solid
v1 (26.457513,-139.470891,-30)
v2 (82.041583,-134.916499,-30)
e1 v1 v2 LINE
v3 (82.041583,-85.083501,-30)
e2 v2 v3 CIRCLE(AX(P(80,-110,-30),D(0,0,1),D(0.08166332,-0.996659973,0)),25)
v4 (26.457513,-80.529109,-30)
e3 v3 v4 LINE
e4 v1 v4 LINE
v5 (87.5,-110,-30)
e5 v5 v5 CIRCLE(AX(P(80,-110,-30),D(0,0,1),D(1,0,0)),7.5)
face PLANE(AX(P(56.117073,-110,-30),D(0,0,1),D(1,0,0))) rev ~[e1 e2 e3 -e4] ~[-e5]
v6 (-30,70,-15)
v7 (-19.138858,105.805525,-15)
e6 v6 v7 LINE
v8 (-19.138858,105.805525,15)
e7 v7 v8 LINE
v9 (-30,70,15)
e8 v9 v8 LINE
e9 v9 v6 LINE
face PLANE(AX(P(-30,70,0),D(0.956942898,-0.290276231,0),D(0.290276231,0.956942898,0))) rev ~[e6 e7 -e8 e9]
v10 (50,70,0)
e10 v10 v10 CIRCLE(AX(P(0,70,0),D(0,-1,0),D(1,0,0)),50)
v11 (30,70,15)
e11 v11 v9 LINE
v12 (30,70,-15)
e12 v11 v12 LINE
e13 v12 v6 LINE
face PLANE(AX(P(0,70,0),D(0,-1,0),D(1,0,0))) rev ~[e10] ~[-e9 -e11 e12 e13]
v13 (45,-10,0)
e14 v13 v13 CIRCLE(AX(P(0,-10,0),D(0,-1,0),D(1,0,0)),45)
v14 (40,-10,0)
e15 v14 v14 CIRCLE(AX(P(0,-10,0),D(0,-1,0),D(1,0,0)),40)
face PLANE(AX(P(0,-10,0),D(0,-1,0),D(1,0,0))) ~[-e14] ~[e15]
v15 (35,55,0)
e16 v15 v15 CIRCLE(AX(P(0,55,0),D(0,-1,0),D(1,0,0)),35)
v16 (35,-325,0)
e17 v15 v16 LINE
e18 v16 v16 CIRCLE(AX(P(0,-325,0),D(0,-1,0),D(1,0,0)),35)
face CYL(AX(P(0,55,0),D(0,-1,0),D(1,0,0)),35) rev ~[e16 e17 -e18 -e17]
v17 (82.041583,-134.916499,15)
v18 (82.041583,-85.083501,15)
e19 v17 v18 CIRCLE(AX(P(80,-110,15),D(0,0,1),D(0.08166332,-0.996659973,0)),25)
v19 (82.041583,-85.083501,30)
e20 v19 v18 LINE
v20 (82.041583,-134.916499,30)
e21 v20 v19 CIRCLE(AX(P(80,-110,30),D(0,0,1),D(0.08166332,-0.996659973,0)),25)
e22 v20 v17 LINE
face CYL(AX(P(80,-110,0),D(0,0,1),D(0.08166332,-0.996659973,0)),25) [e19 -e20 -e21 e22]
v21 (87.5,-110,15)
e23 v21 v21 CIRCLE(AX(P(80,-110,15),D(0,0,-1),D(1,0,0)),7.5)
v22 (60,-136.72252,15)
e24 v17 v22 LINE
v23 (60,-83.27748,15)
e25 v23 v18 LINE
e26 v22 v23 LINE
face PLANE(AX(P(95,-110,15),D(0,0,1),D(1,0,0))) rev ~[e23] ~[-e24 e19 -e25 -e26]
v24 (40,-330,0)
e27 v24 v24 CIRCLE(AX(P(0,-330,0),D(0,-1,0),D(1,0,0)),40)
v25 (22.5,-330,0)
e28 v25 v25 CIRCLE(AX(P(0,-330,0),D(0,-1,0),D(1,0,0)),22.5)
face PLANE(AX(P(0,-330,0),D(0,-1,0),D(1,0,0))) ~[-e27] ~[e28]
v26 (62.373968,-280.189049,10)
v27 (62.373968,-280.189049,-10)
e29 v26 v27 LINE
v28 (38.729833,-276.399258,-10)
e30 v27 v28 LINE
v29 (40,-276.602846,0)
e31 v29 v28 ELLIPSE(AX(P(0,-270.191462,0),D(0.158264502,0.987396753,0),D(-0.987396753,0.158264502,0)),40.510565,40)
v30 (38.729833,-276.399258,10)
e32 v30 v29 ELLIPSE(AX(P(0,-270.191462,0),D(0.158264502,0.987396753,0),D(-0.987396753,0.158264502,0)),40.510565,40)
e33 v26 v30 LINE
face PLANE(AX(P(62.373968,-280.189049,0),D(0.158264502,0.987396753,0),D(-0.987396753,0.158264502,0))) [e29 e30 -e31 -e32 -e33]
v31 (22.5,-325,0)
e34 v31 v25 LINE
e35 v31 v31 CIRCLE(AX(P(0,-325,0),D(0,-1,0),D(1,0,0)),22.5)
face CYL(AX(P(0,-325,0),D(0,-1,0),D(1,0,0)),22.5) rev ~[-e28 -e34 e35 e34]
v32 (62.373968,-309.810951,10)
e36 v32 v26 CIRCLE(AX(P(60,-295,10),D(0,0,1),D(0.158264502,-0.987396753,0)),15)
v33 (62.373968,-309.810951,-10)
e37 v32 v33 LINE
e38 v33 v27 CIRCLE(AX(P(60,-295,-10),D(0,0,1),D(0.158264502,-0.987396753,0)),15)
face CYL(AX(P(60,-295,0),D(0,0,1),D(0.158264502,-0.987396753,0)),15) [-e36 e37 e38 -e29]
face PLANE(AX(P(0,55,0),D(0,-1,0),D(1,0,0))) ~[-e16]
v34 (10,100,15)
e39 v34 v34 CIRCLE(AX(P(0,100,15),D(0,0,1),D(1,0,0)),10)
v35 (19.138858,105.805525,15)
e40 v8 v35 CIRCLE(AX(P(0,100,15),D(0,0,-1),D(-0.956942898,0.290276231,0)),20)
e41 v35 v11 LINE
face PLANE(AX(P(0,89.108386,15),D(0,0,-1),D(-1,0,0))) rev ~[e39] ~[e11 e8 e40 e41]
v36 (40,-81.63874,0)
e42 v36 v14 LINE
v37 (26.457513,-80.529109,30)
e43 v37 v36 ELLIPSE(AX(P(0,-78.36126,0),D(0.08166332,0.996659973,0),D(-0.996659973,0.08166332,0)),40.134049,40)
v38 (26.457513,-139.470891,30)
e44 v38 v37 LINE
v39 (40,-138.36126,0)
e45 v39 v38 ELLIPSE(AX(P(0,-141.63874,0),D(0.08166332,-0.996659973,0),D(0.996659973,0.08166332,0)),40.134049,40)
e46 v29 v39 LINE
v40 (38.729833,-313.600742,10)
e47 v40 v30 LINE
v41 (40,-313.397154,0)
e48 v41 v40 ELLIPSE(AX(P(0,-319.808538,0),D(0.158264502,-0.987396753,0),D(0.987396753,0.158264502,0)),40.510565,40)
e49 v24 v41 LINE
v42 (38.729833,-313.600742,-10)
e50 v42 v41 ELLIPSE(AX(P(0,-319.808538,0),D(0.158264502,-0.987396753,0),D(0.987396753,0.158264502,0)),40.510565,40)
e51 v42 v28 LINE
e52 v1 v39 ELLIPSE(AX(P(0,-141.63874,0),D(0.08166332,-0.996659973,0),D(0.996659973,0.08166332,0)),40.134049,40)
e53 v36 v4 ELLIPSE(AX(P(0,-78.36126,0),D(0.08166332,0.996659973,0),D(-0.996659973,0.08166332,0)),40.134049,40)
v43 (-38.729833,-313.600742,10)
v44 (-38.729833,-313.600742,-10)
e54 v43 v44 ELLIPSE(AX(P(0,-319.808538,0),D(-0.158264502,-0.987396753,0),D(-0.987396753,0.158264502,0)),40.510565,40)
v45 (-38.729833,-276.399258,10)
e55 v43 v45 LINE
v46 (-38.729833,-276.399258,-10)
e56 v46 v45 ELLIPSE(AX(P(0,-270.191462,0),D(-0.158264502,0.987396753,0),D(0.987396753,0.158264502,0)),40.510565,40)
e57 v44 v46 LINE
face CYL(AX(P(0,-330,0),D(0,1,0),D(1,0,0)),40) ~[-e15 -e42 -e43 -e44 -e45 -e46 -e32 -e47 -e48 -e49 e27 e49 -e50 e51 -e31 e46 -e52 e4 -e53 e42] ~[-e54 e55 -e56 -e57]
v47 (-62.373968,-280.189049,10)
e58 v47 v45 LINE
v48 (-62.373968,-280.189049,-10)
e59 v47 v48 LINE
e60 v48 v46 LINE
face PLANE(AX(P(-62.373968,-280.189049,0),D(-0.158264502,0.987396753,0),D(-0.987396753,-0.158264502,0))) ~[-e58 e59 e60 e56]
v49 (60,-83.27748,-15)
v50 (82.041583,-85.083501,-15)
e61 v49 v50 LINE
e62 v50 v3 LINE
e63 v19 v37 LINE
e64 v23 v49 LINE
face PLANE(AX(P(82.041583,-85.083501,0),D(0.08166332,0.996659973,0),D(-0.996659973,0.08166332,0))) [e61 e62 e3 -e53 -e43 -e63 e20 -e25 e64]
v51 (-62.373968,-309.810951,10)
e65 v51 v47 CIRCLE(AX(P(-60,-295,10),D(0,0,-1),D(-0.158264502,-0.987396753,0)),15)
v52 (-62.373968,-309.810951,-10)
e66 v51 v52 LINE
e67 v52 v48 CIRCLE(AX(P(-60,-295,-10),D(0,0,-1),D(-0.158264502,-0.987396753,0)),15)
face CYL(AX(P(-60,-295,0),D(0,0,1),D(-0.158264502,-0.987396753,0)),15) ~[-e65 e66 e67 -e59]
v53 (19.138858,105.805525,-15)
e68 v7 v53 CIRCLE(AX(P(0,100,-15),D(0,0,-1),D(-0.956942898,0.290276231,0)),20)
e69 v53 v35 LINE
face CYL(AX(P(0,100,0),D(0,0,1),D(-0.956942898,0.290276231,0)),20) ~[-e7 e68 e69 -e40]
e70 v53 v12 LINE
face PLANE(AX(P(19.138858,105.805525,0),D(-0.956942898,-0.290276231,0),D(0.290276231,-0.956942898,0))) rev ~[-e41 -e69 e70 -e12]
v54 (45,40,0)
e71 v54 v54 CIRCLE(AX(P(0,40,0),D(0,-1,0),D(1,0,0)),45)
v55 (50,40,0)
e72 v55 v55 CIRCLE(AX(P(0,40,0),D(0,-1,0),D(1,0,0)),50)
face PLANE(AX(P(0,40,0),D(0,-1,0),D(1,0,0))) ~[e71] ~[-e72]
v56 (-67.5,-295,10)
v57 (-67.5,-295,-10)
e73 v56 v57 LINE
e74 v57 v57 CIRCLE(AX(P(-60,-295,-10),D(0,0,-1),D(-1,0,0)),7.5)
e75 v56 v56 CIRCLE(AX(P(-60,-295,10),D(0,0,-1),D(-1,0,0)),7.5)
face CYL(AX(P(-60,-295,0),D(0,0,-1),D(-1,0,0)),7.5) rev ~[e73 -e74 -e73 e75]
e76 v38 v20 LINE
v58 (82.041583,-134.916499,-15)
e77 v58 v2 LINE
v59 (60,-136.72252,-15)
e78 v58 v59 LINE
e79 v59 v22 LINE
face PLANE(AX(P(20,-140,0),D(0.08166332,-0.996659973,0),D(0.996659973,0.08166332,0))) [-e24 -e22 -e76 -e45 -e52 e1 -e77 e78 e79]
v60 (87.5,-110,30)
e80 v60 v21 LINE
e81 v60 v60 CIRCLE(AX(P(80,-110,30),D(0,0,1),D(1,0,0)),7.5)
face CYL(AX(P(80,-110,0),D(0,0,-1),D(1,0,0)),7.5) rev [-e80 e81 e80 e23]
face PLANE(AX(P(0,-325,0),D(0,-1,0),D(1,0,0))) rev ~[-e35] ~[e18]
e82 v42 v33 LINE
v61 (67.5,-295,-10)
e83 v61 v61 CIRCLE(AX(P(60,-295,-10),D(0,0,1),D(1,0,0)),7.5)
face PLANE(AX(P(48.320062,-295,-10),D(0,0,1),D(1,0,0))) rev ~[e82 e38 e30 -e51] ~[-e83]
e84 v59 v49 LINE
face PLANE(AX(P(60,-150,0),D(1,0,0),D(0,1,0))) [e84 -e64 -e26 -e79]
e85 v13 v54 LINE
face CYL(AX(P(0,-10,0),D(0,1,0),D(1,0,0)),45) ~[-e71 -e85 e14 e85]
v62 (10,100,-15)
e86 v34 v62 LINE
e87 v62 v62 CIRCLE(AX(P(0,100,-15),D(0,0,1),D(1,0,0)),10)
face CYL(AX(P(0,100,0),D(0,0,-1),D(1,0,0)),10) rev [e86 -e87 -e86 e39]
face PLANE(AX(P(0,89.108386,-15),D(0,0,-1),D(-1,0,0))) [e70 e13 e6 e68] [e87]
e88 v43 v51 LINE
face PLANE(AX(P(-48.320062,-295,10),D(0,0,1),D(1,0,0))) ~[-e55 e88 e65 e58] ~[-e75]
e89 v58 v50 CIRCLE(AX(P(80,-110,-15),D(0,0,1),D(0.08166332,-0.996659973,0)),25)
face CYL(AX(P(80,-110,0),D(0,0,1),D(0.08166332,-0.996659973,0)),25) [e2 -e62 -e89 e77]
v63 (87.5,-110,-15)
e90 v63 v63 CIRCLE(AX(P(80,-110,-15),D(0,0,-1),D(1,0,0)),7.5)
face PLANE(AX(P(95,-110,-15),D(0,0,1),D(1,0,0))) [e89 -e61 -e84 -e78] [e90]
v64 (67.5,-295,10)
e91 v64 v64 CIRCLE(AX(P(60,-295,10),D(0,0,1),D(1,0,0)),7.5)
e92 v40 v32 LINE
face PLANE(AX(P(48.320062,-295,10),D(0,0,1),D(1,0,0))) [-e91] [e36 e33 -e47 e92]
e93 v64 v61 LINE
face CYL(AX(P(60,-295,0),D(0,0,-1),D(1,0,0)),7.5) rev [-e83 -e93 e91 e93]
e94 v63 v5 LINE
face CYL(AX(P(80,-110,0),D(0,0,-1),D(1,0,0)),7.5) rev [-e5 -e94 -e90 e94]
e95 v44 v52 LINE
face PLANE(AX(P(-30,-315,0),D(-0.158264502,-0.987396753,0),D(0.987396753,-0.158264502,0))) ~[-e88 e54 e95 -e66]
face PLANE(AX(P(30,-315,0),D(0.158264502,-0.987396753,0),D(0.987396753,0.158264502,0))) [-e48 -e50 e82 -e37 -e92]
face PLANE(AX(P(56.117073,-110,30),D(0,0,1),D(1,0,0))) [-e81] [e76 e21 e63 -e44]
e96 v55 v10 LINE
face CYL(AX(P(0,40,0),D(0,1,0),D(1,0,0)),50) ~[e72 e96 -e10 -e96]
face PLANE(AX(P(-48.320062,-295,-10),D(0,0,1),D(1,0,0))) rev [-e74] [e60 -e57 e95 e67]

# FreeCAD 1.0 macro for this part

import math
import FreeCAD as App
import Part
import Sketcher

doc = App.newDocument("Part")
params = doc.addObject("Spreadsheet::Sheet", "Params")
for row, (alias, value) in enumerate([
    ("sketch1_width", "5 mm"),
    ("sketch1_width2", "50 mm"),
    ("sketch1_width3", "35 mm"),
    ("sketch1_height", "320 mm"),
    ("sketch1_height2", "30 mm"),
    ("revolution_angle", "360 deg"),
    ("sketch2_diameter", "20 mm"),
    ("sketch2_radius", "20 mm"),
    ("sketch2_width", "60 mm"),
    ("pad1_length", "30 mm"),
    ("sketch3_diameter", "15 mm"),
    ("sketch3_radius", "15 mm"),
    ("sketch3_height", "40 mm"),
    ("pad2_length", "20 mm"),
    ("sketch4_diameter", "15 mm"),
    ("sketch4_radius", "25 mm"),
    ("sketch4_height", "60 mm"),
    ("pad3_length", "60 mm"),
    ("sketch5_width", "35 mm"),
    ("sketch5_height", "315 mm"),
    ("groove_angle", "360 deg"),
    ("sketch6_width", "70 mm"),
    ("sketch6_height", "80 mm"),
    ("pocket1_length", "30 mm"),
], start=1):
    params.set(f"A{row}", alias)
    params.set(f"B{row}", "=" + value)
    params.setAlias(f"B{row}", alias)

body = doc.addObject("PartDesign::Body", "Body")

sketch1 = doc.addObject("Sketcher::SketchObject", "Sketch")
body.addObject(sketch1)
sketch1.AttachmentSupport = (doc.XY_Plane, [""])
sketch1.MapMode = "FlatFace"
sketch1.addGeometry([
    Part.LineSegment(App.Vector(22, -330, 0), App.Vector(40, -330, 0)),
    Part.LineSegment(App.Vector(40, -330, 0), App.Vector(40, -10, 0)),
    Part.LineSegment(App.Vector(40, -10, 0), App.Vector(45, -10, 0)),
    Part.LineSegment(App.Vector(45, -10, 0), App.Vector(45, 40, 0)),
    Part.LineSegment(App.Vector(45, 40, 0), App.Vector(50, 40, 0)),
    Part.LineSegment(App.Vector(50, 40, 0), App.Vector(50, 70, 0)),
    Part.LineSegment(App.Vector(50, 70, 0), App.Vector(0, 70, 0)),
    Part.LineSegment(App.Vector(0, 70, 0), App.Vector(0, 55, 0)),
    Part.LineSegment(App.Vector(0, 55, 0), App.Vector(35, 55, 0)),
    Part.LineSegment(App.Vector(35, 55, 0), App.Vector(35, -325, 0)),
    Part.LineSegment(App.Vector(35, -325, 0), App.Vector(22, -325, 0)),
    Part.LineSegment(App.Vector(22, -325, 0), App.Vector(22, -330, 0)),
], False)
sketch1.addConstraint([
    Sketcher.Constraint("Coincident", 0, 2, 1, 1),
    Sketcher.Constraint("Coincident", 1, 2, 2, 1),
    Sketcher.Constraint("Coincident", 2, 2, 3, 1),
    Sketcher.Constraint("Coincident", 3, 2, 4, 1),
    Sketcher.Constraint("Coincident", 4, 2, 5, 1),
    Sketcher.Constraint("Coincident", 5, 2, 6, 1),
    Sketcher.Constraint("Coincident", 6, 2, 7, 1),
    Sketcher.Constraint("Coincident", 7, 2, 8, 1),
    Sketcher.Constraint("Coincident", 8, 2, 9, 1),
    Sketcher.Constraint("Coincident", 9, 2, 10, 1),
    Sketcher.Constraint("Coincident", 10, 2, 11, 1),
    Sketcher.Constraint("Coincident", 11, 2, 0, 1),
    Sketcher.Constraint("Horizontal", 0),
    Sketcher.Constraint("Vertical", 1),
    Sketcher.Constraint("Horizontal", 2),
    Sketcher.Constraint("Vertical", 3),
    Sketcher.Constraint("Horizontal", 4),
    Sketcher.Constraint("Vertical", 5),
    Sketcher.Constraint("Horizontal", 6),
    Sketcher.Constraint("Vertical", 7),
    Sketcher.Constraint("Horizontal", 8),
    Sketcher.Constraint("Vertical", 9),
    Sketcher.Constraint("Horizontal", 10),
    Sketcher.Constraint("Vertical", 11),
    Sketcher.Constraint("PointOnObject", 6, 2, -2),
    Sketcher.Constraint("Equal", 2, 4),
    Sketcher.Constraint("Equal", 6, 3),
    Sketcher.Constraint("Equal", 4, 11),
    Sketcher.Constraint("DistanceX", 2, 1, 2, 2, 5.0),
    Sketcher.Constraint("DistanceX", 6, 2, 6, 1, 50.0),
    Sketcher.Constraint("DistanceX", 8, 1, 8, 2, 35.0),
    Sketcher.Constraint("DistanceY", 1, 1, 1, 2, 320.0),
    Sketcher.Constraint("DistanceY", 5, 1, 5, 2, 30.0),
    Sketcher.Constraint("DistanceY", 7, 2, 7, 1, 15.0),
    Sketcher.Constraint("DistanceX", 0, 1, 0, 2, 17.5),
    Sketcher.Constraint("DistanceY", 0, 2, -1, 1, 330.0),
])
sketch1.setExpression("Constraints[28]", "Params.sketch1_width")
sketch1.setExpression("Constraints[29]", "Params.sketch1_width2")
sketch1.setExpression("Constraints[30]", "Params.sketch1_width3")
sketch1.setExpression("Constraints[31]", "Params.sketch1_height")
sketch1.setExpression("Constraints[32]", "Params.sketch1_height2")
revolution = doc.addObject("PartDesign::Revolution", "Revolution")
body.addObject(revolution)
revolution.Profile = sketch1
revolution.ReferenceAxis = (sketch1, ["V_Axis"])
revolution.setExpression("Angle", "Params.revolution_angle")

sketch2 = doc.addObject("Sketcher::SketchObject", "Sketch001")
body.addObject(sketch2)
sketch2.AttachmentSupport = (doc.XY_Plane, [""])
sketch2.MapMode = "FlatFace"
sketch2.addGeometry([
    Part.LineSegment(App.Vector(30, 70, 0), App.Vector(19, 106, 0)),
    Part.ArcOfCircle(Part.Circle(App.Vector(0, 100, 0), App.Vector(0, 0, 1), 20), math.radians(17), math.radians(163)),
    Part.LineSegment(App.Vector(-19, 106, 0), App.Vector(-30, 70, 0)),
    Part.LineSegment(App.Vector(-30, 70, 0), App.Vector(30, 70, 0)),
    Part.Circle(App.Vector(0, 100, 0), App.Vector(0, 0, 1), 10),
], False)
sketch2.addConstraint([
    Sketcher.Constraint("Tangent", 0, 2, 1, 1),
    Sketcher.Constraint("Tangent", 1, 2, 2, 1),
    Sketcher.Constraint("Coincident", 2, 2, 3, 1),
    Sketcher.Constraint("Coincident", 3, 2, 0, 1),
    Sketcher.Constraint("Horizontal", 3),
    Sketcher.Constraint("Coincident", 4, 3, 1, 3),
    Sketcher.Constraint("Symmetric", 0, 2, 1, 2, -2),
    Sketcher.Constraint("Diameter", 4, 20.0),
    Sketcher.Constraint("Radius", 1, 20.0),
    Sketcher.Constraint("DistanceX", 3, 1, 3, 2, 60.0),
    Sketcher.Constraint("DistanceY", -1, 1, 1, 3, 100.0),
    Sketcher.Constraint("DistanceY", -1, 1, 2, 2, 70.0),
])
sketch2.setExpression("Constraints[7]", "Params.sketch2_diameter")
sketch2.setExpression("Constraints[8]", "Params.sketch2_radius")
sketch2.setExpression("Constraints[9]", "Params.sketch2_width")
pad1 = doc.addObject("PartDesign::Pad", "Pad")
body.addObject(pad1)
pad1.Profile = sketch2
pad1.setExpression("Length", "Params.pad1_length")
pad1.Midplane = True

sketch3 = doc.addObject("Sketcher::SketchObject", "Sketch002")
body.addObject(sketch3)
sketch3.AttachmentSupport = (doc.XY_Plane, [""])
sketch3.MapMode = "FlatFace"
sketch3.addGeometry([
    Part.LineSegment(App.Vector(62, -280, 0), App.Vector(30, -275, 0)),
    Part.LineSegment(App.Vector(30, -275, 0), App.Vector(30, -315, 0)),
    Part.LineSegment(App.Vector(30, -315, 0), App.Vector(62, -310, 0)),
    Part.ArcOfCircle(Part.Circle(App.Vector(60, -295, 0), App.Vector(0, 0, 1), 15), math.radians(-81), math.radians(81)),
    Part.Circle(App.Vector(60, -295, 0), App.Vector(0, 0, 1), 8),
], False)
sketch3.addConstraint([
    Sketcher.Constraint("Coincident", 0, 2, 1, 1),
    Sketcher.Constraint("Coincident", 1, 2, 2, 1),
    Sketcher.Constraint("Tangent", 2, 2, 3, 1),
    Sketcher.Constraint("Tangent", 3, 2, 0, 1),
    Sketcher.Constraint("Vertical", 1),
    Sketcher.Constraint("Coincident", 4, 3, 3, 3),
    Sketcher.Constraint("Vertical", 2, 2, 3, 2),
    Sketcher.Constraint("Diameter", 4, 15.0),
    Sketcher.Constraint("Radius", 3, 15.0),
    Sketcher.Constraint("DistanceY", 1, 2, 1, 1, 40.0),
    Sketcher.Constraint("DistanceX", -1, 1, 3, 3, 60.0),
    Sketcher.Constraint("DistanceY", 3, 3, -1, 1, 295.0),
    Sketcher.Constraint("DistanceX", -1, 1, 0, 2, 30.0),
])
sketch3.setExpression("Constraints[7]", "Params.sketch3_diameter")
sketch3.setExpression("Constraints[8]", "Params.sketch3_radius")
sketch3.setExpression("Constraints[9]", "Params.sketch3_height")
pad2 = doc.addObject("PartDesign::Pad", "Pad001")
body.addObject(pad2)
pad2.Profile = sketch3
pad2.setExpression("Length", "Params.pad2_length")
pad2.Midplane = True
doc.recompute()

mirrored = doc.addObject("PartDesign::Mirrored", "Mirrored")
body.addObject(mirrored)
mirrored.Originals = [pad2]
mirrored.MirrorPlane = (doc.YZ_Plane, [""])
body.Tip = mirrored

sketch4 = doc.addObject("Sketcher::SketchObject", "Sketch003")
body.addObject(sketch4)
sketch4.AttachmentSupport = (doc.XY_Plane, [""])
sketch4.MapMode = "FlatFace"
sketch4.addGeometry([
    Part.LineSegment(App.Vector(82, -85, 0), App.Vector(20, -80, 0)),
    Part.LineSegment(App.Vector(20, -80, 0), App.Vector(20, -140, 0)),
    Part.LineSegment(App.Vector(20, -140, 0), App.Vector(82, -135, 0)),
    Part.ArcOfCircle(Part.Circle(App.Vector(80, -110, 0), App.Vector(0, 0, 1), 25), math.radians(-85), math.radians(85)),
    Part.Circle(App.Vector(80, -110, 0), App.Vector(0, 0, 1), 8),
], False)
sketch4.addConstraint([
    Sketcher.Constraint("Coincident", 0, 2, 1, 1),
    Sketcher.Constraint("Coincident", 1, 2, 2, 1),
    Sketcher.Constraint("Tangent", 2, 2, 3, 1),
    Sketcher.Constraint("Tangent", 3, 2, 0, 1),
    Sketcher.Constraint("Vertical", 1),
    Sketcher.Constraint("Coincident", 4, 3, 3, 3),
    Sketcher.Constraint("Vertical", 2, 2, 3, 2),
    Sketcher.Constraint("Diameter", 4, 15.0),
    Sketcher.Constraint("Radius", 3, 25.0),
    Sketcher.Constraint("DistanceY", 1, 2, 1, 1, 60.0),
    Sketcher.Constraint("DistanceX", -1, 1, 3, 3, 80.0),
    Sketcher.Constraint("DistanceY", 3, 3, -1, 1, 110.0),
    Sketcher.Constraint("DistanceX", -1, 1, 0, 2, 20.0),
])
sketch4.setExpression("Constraints[7]", "Params.sketch4_diameter")
sketch4.setExpression("Constraints[8]", "Params.sketch4_radius")
sketch4.setExpression("Constraints[9]", "Params.sketch4_height")
pad3 = doc.addObject("PartDesign::Pad", "Pad002")
body.addObject(pad3)
pad3.Profile = sketch4
pad3.setExpression("Length", "Params.pad3_length")
pad3.Midplane = True

sketch5 = doc.addObject("Sketcher::SketchObject", "Sketch004")
body.addObject(sketch5)
sketch5.AttachmentSupport = (doc.XY_Plane, [""])
sketch5.MapMode = "FlatFace"
sketch5.addGeometry([
    Part.LineSegment(App.Vector(0, -10, 0), App.Vector(0, -325, 0)),
    Part.LineSegment(App.Vector(0, -325, 0), App.Vector(35, -325, 0)),
    Part.LineSegment(App.Vector(35, -325, 0), App.Vector(35, -10, 0)),
    Part.LineSegment(App.Vector(35, -10, 0), App.Vector(0, -10, 0)),
], False)
sketch5.addConstraint([
    Sketcher.Constraint("Coincident", 0, 2, 1, 1),
    Sketcher.Constraint("Coincident", 1, 2, 2, 1),
    Sketcher.Constraint("Coincident", 2, 2, 3, 1),
    Sketcher.Constraint("Coincident", 3, 2, 0, 1),
    Sketcher.Constraint("Vertical", 0),
    Sketcher.Constraint("Horizontal", 1),
    Sketcher.Constraint("Vertical", 2),
    Sketcher.Constraint("Horizontal", 3),
    Sketcher.Constraint("PointOnObject", 0, 2, -2),
    Sketcher.Constraint("DistanceX", 1, 1, 1, 2, 35.0),
    Sketcher.Constraint("DistanceY", 0, 2, 0, 1, 315.0),
    Sketcher.Constraint("DistanceY", 0, 2, -1, 1, 325.0),
])
sketch5.setExpression("Constraints[9]", "Params.sketch5_width")
sketch5.setExpression("Constraints[10]", "Params.sketch5_height")
groove = doc.addObject("PartDesign::Groove", "Groove")
body.addObject(groove)
groove.Profile = sketch5
groove.ReferenceAxis = (sketch5, ["V_Axis"])
groove.setExpression("Angle", "Params.groove_angle")

sketch6 = doc.addObject("Sketcher::SketchObject", "Sketch005")
body.addObject(sketch6)
sketch6.AttachmentSupport = (doc.XY_Plane, [""])
sketch6.MapMode = "FlatFace"
sketch6.addGeometry([
    Part.LineSegment(App.Vector(60, -70, 0), App.Vector(60, -150, 0)),
    Part.LineSegment(App.Vector(60, -150, 0), App.Vector(130, -150, 0)),
    Part.LineSegment(App.Vector(130, -150, 0), App.Vector(130, -70, 0)),
    Part.LineSegment(App.Vector(130, -70, 0), App.Vector(60, -70, 0)),
], False)
sketch6.addConstraint([
    Sketcher.Constraint("Coincident", 0, 2, 1, 1),
    Sketcher.Constraint("Coincident", 1, 2, 2, 1),
    Sketcher.Constraint("Coincident", 2, 2, 3, 1),
    Sketcher.Constraint("Coincident", 3, 2, 0, 1),
    Sketcher.Constraint("Vertical", 0),
    Sketcher.Constraint("Horizontal", 1),
    Sketcher.Constraint("Vertical", 2),
    Sketcher.Constraint("Horizontal", 3),
    Sketcher.Constraint("DistanceX", 1, 1, 1, 2, 70.0),
    Sketcher.Constraint("DistanceY", 0, 2, 0, 1, 80.0),
    Sketcher.Constraint("DistanceX", -1, 1, 0, 2, 60.0),
    Sketcher.Constraint("DistanceY", 0, 2, -1, 1, 150.0),
])
sketch6.setExpression("Constraints[8]", "Params.sketch6_width")
sketch6.setExpression("Constraints[9]", "Params.sketch6_height")
pocket1 = doc.addObject("PartDesign::Pocket", "Pocket")
body.addObject(pocket1)
pocket1.Profile = sketch6
pocket1.setExpression("Length", "Params.pocket1_length")
pocket1.Midplane = True

doc.recompute()
